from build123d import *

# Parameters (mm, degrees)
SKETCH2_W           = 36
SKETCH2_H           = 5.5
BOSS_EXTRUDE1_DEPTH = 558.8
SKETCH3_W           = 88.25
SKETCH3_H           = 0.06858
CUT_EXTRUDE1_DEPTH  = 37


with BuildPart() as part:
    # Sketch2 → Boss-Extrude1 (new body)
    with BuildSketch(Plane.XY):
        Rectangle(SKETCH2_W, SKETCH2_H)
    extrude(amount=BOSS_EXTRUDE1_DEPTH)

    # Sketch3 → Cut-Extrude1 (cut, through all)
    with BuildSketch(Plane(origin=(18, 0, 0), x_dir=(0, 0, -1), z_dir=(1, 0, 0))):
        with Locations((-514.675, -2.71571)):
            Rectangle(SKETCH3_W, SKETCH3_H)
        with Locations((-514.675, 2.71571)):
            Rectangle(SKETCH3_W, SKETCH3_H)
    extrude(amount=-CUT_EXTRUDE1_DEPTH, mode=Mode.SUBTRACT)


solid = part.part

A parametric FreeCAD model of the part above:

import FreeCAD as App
import Part
import Sketcher
from FreeCAD import Vector
Q = App.Units.Quantity


def add_polygon(sketch, points):
    """Adds a closed chain of lines whose ends are joined by coincident constraints."""
    first, n = sketch.GeometryCount, len(points)
    for a, b in zip(points, points[1:] + points[:1]):
        sketch.addGeometry(Part.LineSegment(App.Vector(*a, 0), App.Vector(*b, 0)), False)
    for i in range(n):
        sketch.addConstraint(Sketcher.Constraint("Coincident", first + i, 2, first + (i + 1) % n, 1))

doc = App.newDocument("Part")
body = doc.addObject("PartDesign::Body", "Body")

# Sketch on XY plane
sketch1 = body.newObject("Sketcher::SketchObject", "Sketch")
sketch1.AttachmentSupport = (doc.getObject("XY_Plane"), [""])
sketch1.MapMode = "FlatFace"
add_polygon(sketch1, [(-18, 2.75), (-18, -2.75), (18, -2.75), (18, 2.75)])  # lines 0-3
sketch1.addConstraint([
    Sketcher.Constraint("Vertical", 0),
    Sketcher.Constraint("Horizontal", 1),
    Sketcher.Constraint("Vertical", 2),
    Sketcher.Constraint("Horizontal", 3),
    Sketcher.Constraint("Symmetric", 0, 2, 2, 2, -1, 1),
    Sketcher.Constraint("DistanceX", 1, 1, 1, 2, Q("36 mm")),
    Sketcher.Constraint("DistanceY", 0, 2, 0, 1, Q("5.5 mm")),
])
pad1 = body.newObject("PartDesign::Pad", "Pad")
pad1.Profile = sketch1
pad1.Length = 558.8

# Sketch on YZ plane
sketch2 = body.newObject("Sketcher::SketchObject", "Sketch001")
sketch2.AttachmentSupport = (doc.getObject("YZ_Plane"), [""])
sketch2.MapMode = "FlatFace"
sketch2.AttachmentOffset = App.Placement(Vector(0, 0, 18), App.Rotation())
add_polygon(sketch2, [(-2.68142, 558.8), (-2.75, 558.8), (-2.75, 470.55), (-2.68142, 470.55)])  # lines 0-3
add_polygon(sketch2, [(2.75, 558.8), (2.68142, 558.8), (2.68142, 470.55), (2.75, 470.55)])  # lines 4-7
sketch2.addConstraint([
    Sketcher.Constraint("Horizontal", 0),
    Sketcher.Constraint("Vertical", 1),
    Sketcher.Constraint("Horizontal", 2),
    Sketcher.Constraint("Vertical", 3),
    Sketcher.Constraint("Horizontal", 4),
    Sketcher.Constraint("Vertical", 5),
    Sketcher.Constraint("Horizontal", 6),
    Sketcher.Constraint("Vertical", 7),
    Sketcher.Constraint("Symmetric", 3, 2, 4, 2, -2),
    Sketcher.Constraint("Symmetric", 1, 2, 6, 2, -2),
    Sketcher.Constraint("DistanceY", 1, 2, 1, 1, Q("88.25 mm")),
    Sketcher.Constraint("DistanceY", -1, 1, 0, 2, Q("558.8 mm")),
    Sketcher.Constraint("DistanceX", 1, 2, 6, 2, Q("5.5 mm")),
    Sketcher.Constraint("DistanceX", 0, 2, 0, 1, Q("0.06858 mm")),
])
pocket1 = body.newObject("PartDesign::Pocket", "Pocket")
pocket1.Profile = sketch2
pocket1.Type = "ThroughAll"

doc.recompute()
